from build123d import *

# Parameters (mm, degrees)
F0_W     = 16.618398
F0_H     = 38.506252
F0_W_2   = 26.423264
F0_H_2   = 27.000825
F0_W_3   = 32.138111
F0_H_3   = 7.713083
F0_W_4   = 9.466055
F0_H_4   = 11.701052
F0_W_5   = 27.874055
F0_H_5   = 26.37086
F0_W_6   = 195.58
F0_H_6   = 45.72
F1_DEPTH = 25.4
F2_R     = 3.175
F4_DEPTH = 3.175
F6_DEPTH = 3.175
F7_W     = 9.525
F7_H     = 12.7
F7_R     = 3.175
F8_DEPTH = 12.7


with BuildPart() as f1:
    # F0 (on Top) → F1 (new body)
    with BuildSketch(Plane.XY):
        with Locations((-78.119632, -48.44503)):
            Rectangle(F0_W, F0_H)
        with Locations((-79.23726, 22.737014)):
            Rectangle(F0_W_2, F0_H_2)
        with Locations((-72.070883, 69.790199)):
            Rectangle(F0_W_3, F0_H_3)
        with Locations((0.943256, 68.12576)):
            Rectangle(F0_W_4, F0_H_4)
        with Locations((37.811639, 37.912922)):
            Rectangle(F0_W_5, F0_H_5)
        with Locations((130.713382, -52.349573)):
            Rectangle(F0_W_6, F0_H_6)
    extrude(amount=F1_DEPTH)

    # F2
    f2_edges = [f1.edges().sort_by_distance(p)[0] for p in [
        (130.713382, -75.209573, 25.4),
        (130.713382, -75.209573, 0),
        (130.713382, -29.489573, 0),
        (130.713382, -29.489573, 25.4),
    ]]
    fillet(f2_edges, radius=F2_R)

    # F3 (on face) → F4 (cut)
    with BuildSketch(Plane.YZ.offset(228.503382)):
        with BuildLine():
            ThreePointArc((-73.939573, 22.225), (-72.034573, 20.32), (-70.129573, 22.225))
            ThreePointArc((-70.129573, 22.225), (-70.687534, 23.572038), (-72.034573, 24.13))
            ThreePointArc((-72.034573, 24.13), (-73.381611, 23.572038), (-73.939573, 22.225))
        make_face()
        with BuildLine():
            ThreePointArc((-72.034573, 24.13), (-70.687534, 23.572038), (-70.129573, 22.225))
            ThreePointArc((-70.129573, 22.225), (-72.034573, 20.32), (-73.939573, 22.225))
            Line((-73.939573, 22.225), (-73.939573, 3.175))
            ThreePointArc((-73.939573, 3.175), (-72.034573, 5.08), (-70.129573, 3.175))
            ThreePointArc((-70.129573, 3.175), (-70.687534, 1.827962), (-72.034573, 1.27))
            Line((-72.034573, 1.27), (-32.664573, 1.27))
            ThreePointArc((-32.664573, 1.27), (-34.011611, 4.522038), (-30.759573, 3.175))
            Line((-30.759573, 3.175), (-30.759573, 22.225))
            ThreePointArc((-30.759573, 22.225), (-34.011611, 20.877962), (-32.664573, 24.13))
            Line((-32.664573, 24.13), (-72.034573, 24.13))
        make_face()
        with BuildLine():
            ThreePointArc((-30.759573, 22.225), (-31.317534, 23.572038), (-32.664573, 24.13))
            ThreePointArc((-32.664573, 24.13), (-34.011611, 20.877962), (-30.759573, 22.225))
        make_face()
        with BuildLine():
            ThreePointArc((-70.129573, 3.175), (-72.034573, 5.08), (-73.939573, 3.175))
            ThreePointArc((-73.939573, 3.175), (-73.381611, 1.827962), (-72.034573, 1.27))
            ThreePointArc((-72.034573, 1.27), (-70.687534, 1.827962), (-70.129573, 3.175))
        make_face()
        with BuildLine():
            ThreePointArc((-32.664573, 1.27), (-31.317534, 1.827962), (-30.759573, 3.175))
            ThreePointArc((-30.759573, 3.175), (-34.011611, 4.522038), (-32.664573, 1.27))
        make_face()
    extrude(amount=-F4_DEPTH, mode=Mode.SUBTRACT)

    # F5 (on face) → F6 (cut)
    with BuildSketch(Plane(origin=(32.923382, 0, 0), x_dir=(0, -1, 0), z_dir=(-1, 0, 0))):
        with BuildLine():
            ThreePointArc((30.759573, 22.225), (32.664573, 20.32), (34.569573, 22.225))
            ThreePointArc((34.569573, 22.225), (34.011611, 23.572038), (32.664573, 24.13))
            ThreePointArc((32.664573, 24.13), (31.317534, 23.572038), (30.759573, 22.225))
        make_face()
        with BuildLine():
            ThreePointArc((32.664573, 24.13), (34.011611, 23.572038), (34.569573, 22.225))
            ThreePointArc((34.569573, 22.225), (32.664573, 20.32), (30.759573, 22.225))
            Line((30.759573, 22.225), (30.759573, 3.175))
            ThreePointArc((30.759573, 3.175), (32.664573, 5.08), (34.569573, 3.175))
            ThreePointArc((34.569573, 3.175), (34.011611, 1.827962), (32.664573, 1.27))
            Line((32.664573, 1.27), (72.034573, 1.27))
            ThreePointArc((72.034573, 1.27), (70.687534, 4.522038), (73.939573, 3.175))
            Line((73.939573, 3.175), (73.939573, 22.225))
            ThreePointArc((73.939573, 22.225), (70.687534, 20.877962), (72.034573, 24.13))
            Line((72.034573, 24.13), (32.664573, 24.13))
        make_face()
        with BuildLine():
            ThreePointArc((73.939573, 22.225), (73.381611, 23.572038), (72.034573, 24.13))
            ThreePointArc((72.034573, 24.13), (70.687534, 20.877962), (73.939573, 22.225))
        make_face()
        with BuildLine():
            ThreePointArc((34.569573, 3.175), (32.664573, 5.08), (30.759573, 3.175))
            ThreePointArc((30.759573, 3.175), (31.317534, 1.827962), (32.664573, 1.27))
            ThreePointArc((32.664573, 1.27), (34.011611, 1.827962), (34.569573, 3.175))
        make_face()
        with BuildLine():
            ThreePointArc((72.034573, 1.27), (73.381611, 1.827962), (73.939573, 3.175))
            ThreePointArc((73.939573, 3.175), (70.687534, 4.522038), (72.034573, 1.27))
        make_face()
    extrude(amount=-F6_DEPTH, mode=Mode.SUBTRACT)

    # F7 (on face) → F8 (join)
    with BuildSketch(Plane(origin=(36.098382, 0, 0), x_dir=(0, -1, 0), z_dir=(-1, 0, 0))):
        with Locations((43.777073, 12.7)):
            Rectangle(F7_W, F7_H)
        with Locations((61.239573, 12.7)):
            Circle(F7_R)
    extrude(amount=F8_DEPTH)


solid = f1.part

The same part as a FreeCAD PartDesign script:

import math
import FreeCAD as App
import Part
import Sketcher
Q = App.Units.Quantity


def edges_at(feature, points):
    """Names of the edges that pass closest to the given points."""
    edges = feature.Shape.Edges
    near = lambda p: min(range(len(edges)), key=lambda i: edges[i].distToShape(Part.Vertex(*p))[0])
    return sorted({f"Edge{near(p) + 1}" for p in points})


def add_polygon(sketch, points):
    """Adds a closed chain of lines whose ends are joined by coincident constraints."""
    first, n = sketch.GeometryCount, len(points)
    for a, b in zip(points, points[1:] + points[:1]):
        sketch.addGeometry(Part.LineSegment(App.Vector(*a, 0), App.Vector(*b, 0)), False)
    for i in range(n):
        sketch.addConstraint(Sketcher.Constraint("Coincident", first + i, 2, first + (i + 1) % n, 1))

doc = App.newDocument("Part")
body = doc.addObject("PartDesign::Body", "Body")
body.AllowCompound = True

sketch1 = doc.addObject("Sketcher::SketchObject", "Sketch")
body.addObject(sketch1)
sketch1.AttachmentSupport = (doc.XY_Plane, [""])
sketch1.MapMode = "FlatFace"
add_polygon(sketch1, [(-86, -29), (-86, -68), (-70, -68), (-70, -29)])
add_polygon(sketch1, [(-92, 36), (-92, 9), (-66, 9), (-66, 36)])
add_polygon(sketch1, [(-88, 74), (-88, 66), (-56, 66), (-56, 74)])
add_polygon(sketch1, [(-4, 74), (-4, 62), (6, 62), (6, 74)])
add_polygon(sketch1, [(24, 51), (24, 25), (52, 25), (52, 51)])
add_polygon(sketch1, [(33, -29), (33, -75), (229, -75), (229, -29)])
sketch1.addConstraint([
    Sketcher.Constraint("Vertical", 0),
    Sketcher.Constraint("Horizontal", 1),
    Sketcher.Constraint("Vertical", 2),
    Sketcher.Constraint("Horizontal", 3),
    Sketcher.Constraint("Vertical", 4),
    Sketcher.Constraint("Horizontal", 5),
    Sketcher.Constraint("Vertical", 6),
    Sketcher.Constraint("Horizontal", 7),
    Sketcher.Constraint("Vertical", 8),
    Sketcher.Constraint("Horizontal", 9),
    Sketcher.Constraint("Vertical", 10),
    Sketcher.Constraint("Horizontal", 11),
    Sketcher.Constraint("Vertical", 12),
    Sketcher.Constraint("Horizontal", 13),
    Sketcher.Constraint("Vertical", 14),
    Sketcher.Constraint("Horizontal", 15),
    Sketcher.Constraint("Vertical", 16),
    Sketcher.Constraint("Horizontal", 17),
    Sketcher.Constraint("Vertical", 18),
    Sketcher.Constraint("Horizontal", 19),
    Sketcher.Constraint("Vertical", 20),
    Sketcher.Constraint("Horizontal", 21),
    Sketcher.Constraint("Vertical", 22),
    Sketcher.Constraint("Horizontal", 23),
    Sketcher.Constraint("DistanceX", 21, 1, 21, 2, Q("7.7 in")),
    Sketcher.Constraint("DistanceY", 20, 2, 20, 1, Q("1.8 in")),
    Sketcher.Constraint("DistanceX", 9, 1, 9, 2, 32.138111),
    Sketcher.Constraint("DistanceY", 0, 2, 0, 1, 38.506252),
    Sketcher.Constraint("DistanceY", 16, 2, 16, 1, 26.37086),
    Sketcher.Constraint("DistanceY", -1, 1, 4, 2, 9.236602),
    Sketcher.Constraint("DistanceX", 6, 2, 9, 2, 10.023801),
    Sketcher.Constraint("DistanceX", 1, 1, 1, 2, 16.618398),
    Sketcher.Constraint("DistanceX", 5, 1, 5, 2, 26.423264),
    Sketcher.Constraint("DistanceX", 13, 1, 13, 2, 9.466055),
    Sketcher.Constraint("DistanceX", 17, 1, 17, 2, 27.874055),
    Sketcher.Constraint("DistanceY", 4, 2, 4, 1, 27.000825),
    Sketcher.Constraint("DistanceY", 8, 2, 8, 1, 7.713083),
    Sketcher.Constraint("DistanceY", 12, 2, 12, 1, 11.701052),
    Sketcher.Constraint("DistanceX", 0, 2, -1, 1, 86.428831),
    Sketcher.Constraint("DistanceX", 4, 2, -1, 1, 92.448892),
    Sketcher.Constraint("DistanceY", -1, 1, 10, 2, 73.646741),
    Sketcher.Constraint("DistanceX", 12, 2, -1, 1, 3.789772),
    Sketcher.Constraint("DistanceX", -1, 1, 16, 2, 23.874612),
    Sketcher.Constraint("DistanceY", -1, 1, 18, 2, 51.098352),
    Sketcher.Constraint("DistanceX", -1, 1, 20, 2, 32.923382),
    Sketcher.Constraint("DistanceY", 2, 2, 6, 2, 65.42933),
    Sketcher.Constraint("DistanceY", 9, 2, 14, 2, 8.042629),
    Sketcher.Constraint("DistanceY", 20, 2, 2, 2, 46.017669),
])
pad1 = doc.addObject("PartDesign::Pad", "Pad")
body.addObject(pad1)
pad1.Profile = sketch1
pad1.Length = Q("1 in")
doc.recompute()

fillet = doc.addObject("PartDesign::Fillet", "Fillet")
body.addObject(fillet)
fillet.Base = (pad1, edges_at(pad1, [
    (130.713, -75.21, 25.4),
    (130.713, -75.21, 0),
    (130.713, -29.49, 0),
    (130.713, -29.49, 25.4),
]))
fillet.Radius = Q("0.125 in")

sketch2 = doc.addObject("Sketcher::SketchObject", "Sketch001")
body.addObject(sketch2)
sketch2.AttachmentSupport = (doc.YZ_Plane, [""])
sketch2.MapMode = "FlatFace"
sketch2.AttachmentOffset = App.Placement(App.Vector(0, 0, 228.503382), App.Rotation())
sketch2.addGeometry([
    Part.ArcOfCircle(Part.Circle(App.Vector(-72, 22.2, 0), App.Vector(0, 0, 1), 1.9), math.radians(90), math.radians(180)),
    Part.LineSegment(App.Vector(-73.9, 22.2, 0), App.Vector(-73.9, 3.2, 0)),
    Part.ArcOfCircle(Part.Circle(App.Vector(-72, 3.2, 0), App.Vector(0, 0, 1), 1.9), math.radians(-180), math.radians(-90)),
    Part.LineSegment(App.Vector(-72, 1.3, 0), App.Vector(-32.7, 1.3, 0)),
    Part.ArcOfCircle(Part.Circle(App.Vector(-32.7, 3.2, 0), App.Vector(0, 0, 1), 1.9), math.radians(-90), math.radians(0)),
    Part.LineSegment(App.Vector(-30.8, 3.2, 0), App.Vector(-30.8, 22.2, 0)),
    Part.ArcOfCircle(Part.Circle(App.Vector(-32.7, 22.2, 0), App.Vector(0, 0, 1), 1.9), math.radians(0), math.radians(90)),
    Part.LineSegment(App.Vector(-32.7, 24.1, 0), App.Vector(-72, 24.1, 0)),
], False)
sketch2.addConstraint([
    Sketcher.Constraint("Tangent", 0, 2, 1, 1),
    Sketcher.Constraint("Tangent", 1, 2, 2, 1),
    Sketcher.Constraint("Tangent", 2, 2, 3, 1),
    Sketcher.Constraint("Tangent", 3, 2, 4, 1),
    Sketcher.Constraint("Tangent", 4, 2, 5, 1),
    Sketcher.Constraint("Tangent", 5, 2, 6, 1),
    Sketcher.Constraint("Tangent", 6, 2, 7, 1),
    Sketcher.Constraint("Tangent", 7, 2, 0, 1),
    Sketcher.Constraint("Vertical", 1),
    Sketcher.Constraint("Horizontal", 3),
    Sketcher.Constraint("Vertical", 5),
    Sketcher.Constraint("Horizontal", 7),
    Sketcher.Constraint("Equal", 0, 2),
    Sketcher.Constraint("Equal", 2, 4),
    Sketcher.Constraint("Equal", 4, 6),
    Sketcher.Constraint("Radius", 0, Q("0.0750001 in")),
    Sketcher.Constraint("DistanceX", 3, 1, 3, 2, Q("1.55 in")),
    Sketcher.Constraint("DistanceY", 1, 2, 1, 1, Q("0.75 in")),
    Sketcher.Constraint("DistanceY", -1, 1, 2, 2, Q("0.05 in")),
    Sketcher.Constraint("DistanceX", 0, 3, -1, 1, 72.034572),
])
pocket1 = doc.addObject("PartDesign::Pocket", "Pocket")
body.addObject(pocket1)
pocket1.Profile = sketch2
pocket1.Length = Q("0.125 in")

sketch3 = doc.addObject("Sketcher::SketchObject", "Sketch002")
body.addObject(sketch3)
sketch3.AttachmentSupport = (doc.YZ_Plane, [""])
sketch3.MapMode = "FlatFace"
sketch3.AttachmentOffset = App.Placement(App.Vector(0, 0, 32.923382), App.Rotation())
sketch3.addGeometry([
    Part.ArcOfCircle(Part.Circle(App.Vector(-32.7, 22.2, 0), App.Vector(0, 0, 1), 1.9), math.radians(0), math.radians(90)),
    Part.LineSegment(App.Vector(-30.8, 22.2, 0), App.Vector(-30.8, 3.2, 0)),
    Part.ArcOfCircle(Part.Circle(App.Vector(-32.7, 3.2, 0), App.Vector(0, 0, 1), 1.9), math.radians(-90), math.radians(0)),
    Part.LineSegment(App.Vector(-32.7, 1.3, 0), App.Vector(-72, 1.3, 0)),
    Part.ArcOfCircle(Part.Circle(App.Vector(-72, 3.2, 0), App.Vector(0, 0, 1), 1.9), math.radians(-180), math.radians(-90)),
    Part.LineSegment(App.Vector(-73.9, 3.2, 0), App.Vector(-73.9, 22.2, 0)),
    Part.ArcOfCircle(Part.Circle(App.Vector(-72, 22.2, 0), App.Vector(0, 0, 1), 1.9), math.radians(90), math.radians(180)),
    Part.LineSegment(App.Vector(-72, 24.1, 0), App.Vector(-32.7, 24.1, 0)),
], False)
sketch3.addConstraint([
    Sketcher.Constraint("Tangent", 0, 1, 1, 1),
    Sketcher.Constraint("Tangent", 1, 2, 2, 2),
    Sketcher.Constraint("Tangent", 2, 1, 3, 1),
    Sketcher.Constraint("Tangent", 3, 2, 4, 2),
    Sketcher.Constraint("Tangent", 4, 1, 5, 1),
    Sketcher.Constraint("Tangent", 5, 2, 6, 2),
    Sketcher.Constraint("Tangent", 6, 1, 7, 1),
    Sketcher.Constraint("Tangent", 7, 2, 0, 2),
    Sketcher.Constraint("Vertical", 1),
    Sketcher.Constraint("Horizontal", 3),
    Sketcher.Constraint("Vertical", 5),
    Sketcher.Constraint("Horizontal", 7),
    Sketcher.Constraint("Equal", 0, 2),
    Sketcher.Constraint("Equal", 2, 4),
    Sketcher.Constraint("Equal", 4, 6),
    Sketcher.Constraint("Radius", 0, Q("0.075 in")),
    Sketcher.Constraint("DistanceX", 3, 2, 3, 1, Q("1.55 in")),
    Sketcher.Constraint("DistanceY", 1, 2, 1, 1, Q("0.75 in")),
    Sketcher.Constraint("DistanceY", -1, 1, 2, 1, Q("0.05 in")),
    Sketcher.Constraint("DistanceX", 4, 3, -1, 1, 72.034572),
])
pocket2 = doc.addObject("PartDesign::Pocket", "Pocket001")
body.addObject(pocket2)
pocket2.Profile = sketch3
pocket2.Length = Q("0.125 in")
pocket2.Reversed = True

sketch4 = doc.addObject("Sketcher::SketchObject", "Sketch003")
body.addObject(sketch4)
sketch4.AttachmentSupport = (doc.YZ_Plane, [""])
sketch4.MapMode = "FlatFace"
sketch4.AttachmentOffset = App.Placement(App.Vector(0, 0, 36.098382), App.Rotation())
add_polygon(sketch4, [(-39, 19.1), (-39, 6.3), (-48.5, 6.3), (-48.5, 19.1)])
sketch4.addGeometry(Part.Circle(App.Vector(-61.2, 12.7, 0), App.Vector(0, 0, 1), 3.2), False)
sketch4.addConstraint([
    Sketcher.Constraint("Vertical", 0),
    Sketcher.Constraint("Horizontal", 1),
    Sketcher.Constraint("Vertical", 2),
    Sketcher.Constraint("Horizontal", 3),
    Sketcher.Constraint("Diameter", 4, Q("0.25 in")),
    Sketcher.Constraint("DistanceY", 0, 2, 0, 1, Q("0.5 in")),
    Sketcher.Constraint("DistanceY", -1, 1, 4, 3, Q("0.5 in")),
    Sketcher.Constraint("DistanceX", 4, 3, 1, 2, Q("0.5 in")),
    Sketcher.Constraint("DistanceX", 1, 2, 1, 1, Q("0.375 in")),
    Sketcher.Constraint("DistanceY", -1, 1, 0, 2, Q("0.25 in")),
    Sketcher.Constraint("DistanceX", 4, 3, -1, 1, 61.239573),
])
pad2 = doc.addObject("PartDesign::Pad", "Pad001")
body.addObject(pad2)
pad2.Profile = sketch4
pad2.Length = Q("0.5 in")
pad2.Reversed = True

doc.recompute()
